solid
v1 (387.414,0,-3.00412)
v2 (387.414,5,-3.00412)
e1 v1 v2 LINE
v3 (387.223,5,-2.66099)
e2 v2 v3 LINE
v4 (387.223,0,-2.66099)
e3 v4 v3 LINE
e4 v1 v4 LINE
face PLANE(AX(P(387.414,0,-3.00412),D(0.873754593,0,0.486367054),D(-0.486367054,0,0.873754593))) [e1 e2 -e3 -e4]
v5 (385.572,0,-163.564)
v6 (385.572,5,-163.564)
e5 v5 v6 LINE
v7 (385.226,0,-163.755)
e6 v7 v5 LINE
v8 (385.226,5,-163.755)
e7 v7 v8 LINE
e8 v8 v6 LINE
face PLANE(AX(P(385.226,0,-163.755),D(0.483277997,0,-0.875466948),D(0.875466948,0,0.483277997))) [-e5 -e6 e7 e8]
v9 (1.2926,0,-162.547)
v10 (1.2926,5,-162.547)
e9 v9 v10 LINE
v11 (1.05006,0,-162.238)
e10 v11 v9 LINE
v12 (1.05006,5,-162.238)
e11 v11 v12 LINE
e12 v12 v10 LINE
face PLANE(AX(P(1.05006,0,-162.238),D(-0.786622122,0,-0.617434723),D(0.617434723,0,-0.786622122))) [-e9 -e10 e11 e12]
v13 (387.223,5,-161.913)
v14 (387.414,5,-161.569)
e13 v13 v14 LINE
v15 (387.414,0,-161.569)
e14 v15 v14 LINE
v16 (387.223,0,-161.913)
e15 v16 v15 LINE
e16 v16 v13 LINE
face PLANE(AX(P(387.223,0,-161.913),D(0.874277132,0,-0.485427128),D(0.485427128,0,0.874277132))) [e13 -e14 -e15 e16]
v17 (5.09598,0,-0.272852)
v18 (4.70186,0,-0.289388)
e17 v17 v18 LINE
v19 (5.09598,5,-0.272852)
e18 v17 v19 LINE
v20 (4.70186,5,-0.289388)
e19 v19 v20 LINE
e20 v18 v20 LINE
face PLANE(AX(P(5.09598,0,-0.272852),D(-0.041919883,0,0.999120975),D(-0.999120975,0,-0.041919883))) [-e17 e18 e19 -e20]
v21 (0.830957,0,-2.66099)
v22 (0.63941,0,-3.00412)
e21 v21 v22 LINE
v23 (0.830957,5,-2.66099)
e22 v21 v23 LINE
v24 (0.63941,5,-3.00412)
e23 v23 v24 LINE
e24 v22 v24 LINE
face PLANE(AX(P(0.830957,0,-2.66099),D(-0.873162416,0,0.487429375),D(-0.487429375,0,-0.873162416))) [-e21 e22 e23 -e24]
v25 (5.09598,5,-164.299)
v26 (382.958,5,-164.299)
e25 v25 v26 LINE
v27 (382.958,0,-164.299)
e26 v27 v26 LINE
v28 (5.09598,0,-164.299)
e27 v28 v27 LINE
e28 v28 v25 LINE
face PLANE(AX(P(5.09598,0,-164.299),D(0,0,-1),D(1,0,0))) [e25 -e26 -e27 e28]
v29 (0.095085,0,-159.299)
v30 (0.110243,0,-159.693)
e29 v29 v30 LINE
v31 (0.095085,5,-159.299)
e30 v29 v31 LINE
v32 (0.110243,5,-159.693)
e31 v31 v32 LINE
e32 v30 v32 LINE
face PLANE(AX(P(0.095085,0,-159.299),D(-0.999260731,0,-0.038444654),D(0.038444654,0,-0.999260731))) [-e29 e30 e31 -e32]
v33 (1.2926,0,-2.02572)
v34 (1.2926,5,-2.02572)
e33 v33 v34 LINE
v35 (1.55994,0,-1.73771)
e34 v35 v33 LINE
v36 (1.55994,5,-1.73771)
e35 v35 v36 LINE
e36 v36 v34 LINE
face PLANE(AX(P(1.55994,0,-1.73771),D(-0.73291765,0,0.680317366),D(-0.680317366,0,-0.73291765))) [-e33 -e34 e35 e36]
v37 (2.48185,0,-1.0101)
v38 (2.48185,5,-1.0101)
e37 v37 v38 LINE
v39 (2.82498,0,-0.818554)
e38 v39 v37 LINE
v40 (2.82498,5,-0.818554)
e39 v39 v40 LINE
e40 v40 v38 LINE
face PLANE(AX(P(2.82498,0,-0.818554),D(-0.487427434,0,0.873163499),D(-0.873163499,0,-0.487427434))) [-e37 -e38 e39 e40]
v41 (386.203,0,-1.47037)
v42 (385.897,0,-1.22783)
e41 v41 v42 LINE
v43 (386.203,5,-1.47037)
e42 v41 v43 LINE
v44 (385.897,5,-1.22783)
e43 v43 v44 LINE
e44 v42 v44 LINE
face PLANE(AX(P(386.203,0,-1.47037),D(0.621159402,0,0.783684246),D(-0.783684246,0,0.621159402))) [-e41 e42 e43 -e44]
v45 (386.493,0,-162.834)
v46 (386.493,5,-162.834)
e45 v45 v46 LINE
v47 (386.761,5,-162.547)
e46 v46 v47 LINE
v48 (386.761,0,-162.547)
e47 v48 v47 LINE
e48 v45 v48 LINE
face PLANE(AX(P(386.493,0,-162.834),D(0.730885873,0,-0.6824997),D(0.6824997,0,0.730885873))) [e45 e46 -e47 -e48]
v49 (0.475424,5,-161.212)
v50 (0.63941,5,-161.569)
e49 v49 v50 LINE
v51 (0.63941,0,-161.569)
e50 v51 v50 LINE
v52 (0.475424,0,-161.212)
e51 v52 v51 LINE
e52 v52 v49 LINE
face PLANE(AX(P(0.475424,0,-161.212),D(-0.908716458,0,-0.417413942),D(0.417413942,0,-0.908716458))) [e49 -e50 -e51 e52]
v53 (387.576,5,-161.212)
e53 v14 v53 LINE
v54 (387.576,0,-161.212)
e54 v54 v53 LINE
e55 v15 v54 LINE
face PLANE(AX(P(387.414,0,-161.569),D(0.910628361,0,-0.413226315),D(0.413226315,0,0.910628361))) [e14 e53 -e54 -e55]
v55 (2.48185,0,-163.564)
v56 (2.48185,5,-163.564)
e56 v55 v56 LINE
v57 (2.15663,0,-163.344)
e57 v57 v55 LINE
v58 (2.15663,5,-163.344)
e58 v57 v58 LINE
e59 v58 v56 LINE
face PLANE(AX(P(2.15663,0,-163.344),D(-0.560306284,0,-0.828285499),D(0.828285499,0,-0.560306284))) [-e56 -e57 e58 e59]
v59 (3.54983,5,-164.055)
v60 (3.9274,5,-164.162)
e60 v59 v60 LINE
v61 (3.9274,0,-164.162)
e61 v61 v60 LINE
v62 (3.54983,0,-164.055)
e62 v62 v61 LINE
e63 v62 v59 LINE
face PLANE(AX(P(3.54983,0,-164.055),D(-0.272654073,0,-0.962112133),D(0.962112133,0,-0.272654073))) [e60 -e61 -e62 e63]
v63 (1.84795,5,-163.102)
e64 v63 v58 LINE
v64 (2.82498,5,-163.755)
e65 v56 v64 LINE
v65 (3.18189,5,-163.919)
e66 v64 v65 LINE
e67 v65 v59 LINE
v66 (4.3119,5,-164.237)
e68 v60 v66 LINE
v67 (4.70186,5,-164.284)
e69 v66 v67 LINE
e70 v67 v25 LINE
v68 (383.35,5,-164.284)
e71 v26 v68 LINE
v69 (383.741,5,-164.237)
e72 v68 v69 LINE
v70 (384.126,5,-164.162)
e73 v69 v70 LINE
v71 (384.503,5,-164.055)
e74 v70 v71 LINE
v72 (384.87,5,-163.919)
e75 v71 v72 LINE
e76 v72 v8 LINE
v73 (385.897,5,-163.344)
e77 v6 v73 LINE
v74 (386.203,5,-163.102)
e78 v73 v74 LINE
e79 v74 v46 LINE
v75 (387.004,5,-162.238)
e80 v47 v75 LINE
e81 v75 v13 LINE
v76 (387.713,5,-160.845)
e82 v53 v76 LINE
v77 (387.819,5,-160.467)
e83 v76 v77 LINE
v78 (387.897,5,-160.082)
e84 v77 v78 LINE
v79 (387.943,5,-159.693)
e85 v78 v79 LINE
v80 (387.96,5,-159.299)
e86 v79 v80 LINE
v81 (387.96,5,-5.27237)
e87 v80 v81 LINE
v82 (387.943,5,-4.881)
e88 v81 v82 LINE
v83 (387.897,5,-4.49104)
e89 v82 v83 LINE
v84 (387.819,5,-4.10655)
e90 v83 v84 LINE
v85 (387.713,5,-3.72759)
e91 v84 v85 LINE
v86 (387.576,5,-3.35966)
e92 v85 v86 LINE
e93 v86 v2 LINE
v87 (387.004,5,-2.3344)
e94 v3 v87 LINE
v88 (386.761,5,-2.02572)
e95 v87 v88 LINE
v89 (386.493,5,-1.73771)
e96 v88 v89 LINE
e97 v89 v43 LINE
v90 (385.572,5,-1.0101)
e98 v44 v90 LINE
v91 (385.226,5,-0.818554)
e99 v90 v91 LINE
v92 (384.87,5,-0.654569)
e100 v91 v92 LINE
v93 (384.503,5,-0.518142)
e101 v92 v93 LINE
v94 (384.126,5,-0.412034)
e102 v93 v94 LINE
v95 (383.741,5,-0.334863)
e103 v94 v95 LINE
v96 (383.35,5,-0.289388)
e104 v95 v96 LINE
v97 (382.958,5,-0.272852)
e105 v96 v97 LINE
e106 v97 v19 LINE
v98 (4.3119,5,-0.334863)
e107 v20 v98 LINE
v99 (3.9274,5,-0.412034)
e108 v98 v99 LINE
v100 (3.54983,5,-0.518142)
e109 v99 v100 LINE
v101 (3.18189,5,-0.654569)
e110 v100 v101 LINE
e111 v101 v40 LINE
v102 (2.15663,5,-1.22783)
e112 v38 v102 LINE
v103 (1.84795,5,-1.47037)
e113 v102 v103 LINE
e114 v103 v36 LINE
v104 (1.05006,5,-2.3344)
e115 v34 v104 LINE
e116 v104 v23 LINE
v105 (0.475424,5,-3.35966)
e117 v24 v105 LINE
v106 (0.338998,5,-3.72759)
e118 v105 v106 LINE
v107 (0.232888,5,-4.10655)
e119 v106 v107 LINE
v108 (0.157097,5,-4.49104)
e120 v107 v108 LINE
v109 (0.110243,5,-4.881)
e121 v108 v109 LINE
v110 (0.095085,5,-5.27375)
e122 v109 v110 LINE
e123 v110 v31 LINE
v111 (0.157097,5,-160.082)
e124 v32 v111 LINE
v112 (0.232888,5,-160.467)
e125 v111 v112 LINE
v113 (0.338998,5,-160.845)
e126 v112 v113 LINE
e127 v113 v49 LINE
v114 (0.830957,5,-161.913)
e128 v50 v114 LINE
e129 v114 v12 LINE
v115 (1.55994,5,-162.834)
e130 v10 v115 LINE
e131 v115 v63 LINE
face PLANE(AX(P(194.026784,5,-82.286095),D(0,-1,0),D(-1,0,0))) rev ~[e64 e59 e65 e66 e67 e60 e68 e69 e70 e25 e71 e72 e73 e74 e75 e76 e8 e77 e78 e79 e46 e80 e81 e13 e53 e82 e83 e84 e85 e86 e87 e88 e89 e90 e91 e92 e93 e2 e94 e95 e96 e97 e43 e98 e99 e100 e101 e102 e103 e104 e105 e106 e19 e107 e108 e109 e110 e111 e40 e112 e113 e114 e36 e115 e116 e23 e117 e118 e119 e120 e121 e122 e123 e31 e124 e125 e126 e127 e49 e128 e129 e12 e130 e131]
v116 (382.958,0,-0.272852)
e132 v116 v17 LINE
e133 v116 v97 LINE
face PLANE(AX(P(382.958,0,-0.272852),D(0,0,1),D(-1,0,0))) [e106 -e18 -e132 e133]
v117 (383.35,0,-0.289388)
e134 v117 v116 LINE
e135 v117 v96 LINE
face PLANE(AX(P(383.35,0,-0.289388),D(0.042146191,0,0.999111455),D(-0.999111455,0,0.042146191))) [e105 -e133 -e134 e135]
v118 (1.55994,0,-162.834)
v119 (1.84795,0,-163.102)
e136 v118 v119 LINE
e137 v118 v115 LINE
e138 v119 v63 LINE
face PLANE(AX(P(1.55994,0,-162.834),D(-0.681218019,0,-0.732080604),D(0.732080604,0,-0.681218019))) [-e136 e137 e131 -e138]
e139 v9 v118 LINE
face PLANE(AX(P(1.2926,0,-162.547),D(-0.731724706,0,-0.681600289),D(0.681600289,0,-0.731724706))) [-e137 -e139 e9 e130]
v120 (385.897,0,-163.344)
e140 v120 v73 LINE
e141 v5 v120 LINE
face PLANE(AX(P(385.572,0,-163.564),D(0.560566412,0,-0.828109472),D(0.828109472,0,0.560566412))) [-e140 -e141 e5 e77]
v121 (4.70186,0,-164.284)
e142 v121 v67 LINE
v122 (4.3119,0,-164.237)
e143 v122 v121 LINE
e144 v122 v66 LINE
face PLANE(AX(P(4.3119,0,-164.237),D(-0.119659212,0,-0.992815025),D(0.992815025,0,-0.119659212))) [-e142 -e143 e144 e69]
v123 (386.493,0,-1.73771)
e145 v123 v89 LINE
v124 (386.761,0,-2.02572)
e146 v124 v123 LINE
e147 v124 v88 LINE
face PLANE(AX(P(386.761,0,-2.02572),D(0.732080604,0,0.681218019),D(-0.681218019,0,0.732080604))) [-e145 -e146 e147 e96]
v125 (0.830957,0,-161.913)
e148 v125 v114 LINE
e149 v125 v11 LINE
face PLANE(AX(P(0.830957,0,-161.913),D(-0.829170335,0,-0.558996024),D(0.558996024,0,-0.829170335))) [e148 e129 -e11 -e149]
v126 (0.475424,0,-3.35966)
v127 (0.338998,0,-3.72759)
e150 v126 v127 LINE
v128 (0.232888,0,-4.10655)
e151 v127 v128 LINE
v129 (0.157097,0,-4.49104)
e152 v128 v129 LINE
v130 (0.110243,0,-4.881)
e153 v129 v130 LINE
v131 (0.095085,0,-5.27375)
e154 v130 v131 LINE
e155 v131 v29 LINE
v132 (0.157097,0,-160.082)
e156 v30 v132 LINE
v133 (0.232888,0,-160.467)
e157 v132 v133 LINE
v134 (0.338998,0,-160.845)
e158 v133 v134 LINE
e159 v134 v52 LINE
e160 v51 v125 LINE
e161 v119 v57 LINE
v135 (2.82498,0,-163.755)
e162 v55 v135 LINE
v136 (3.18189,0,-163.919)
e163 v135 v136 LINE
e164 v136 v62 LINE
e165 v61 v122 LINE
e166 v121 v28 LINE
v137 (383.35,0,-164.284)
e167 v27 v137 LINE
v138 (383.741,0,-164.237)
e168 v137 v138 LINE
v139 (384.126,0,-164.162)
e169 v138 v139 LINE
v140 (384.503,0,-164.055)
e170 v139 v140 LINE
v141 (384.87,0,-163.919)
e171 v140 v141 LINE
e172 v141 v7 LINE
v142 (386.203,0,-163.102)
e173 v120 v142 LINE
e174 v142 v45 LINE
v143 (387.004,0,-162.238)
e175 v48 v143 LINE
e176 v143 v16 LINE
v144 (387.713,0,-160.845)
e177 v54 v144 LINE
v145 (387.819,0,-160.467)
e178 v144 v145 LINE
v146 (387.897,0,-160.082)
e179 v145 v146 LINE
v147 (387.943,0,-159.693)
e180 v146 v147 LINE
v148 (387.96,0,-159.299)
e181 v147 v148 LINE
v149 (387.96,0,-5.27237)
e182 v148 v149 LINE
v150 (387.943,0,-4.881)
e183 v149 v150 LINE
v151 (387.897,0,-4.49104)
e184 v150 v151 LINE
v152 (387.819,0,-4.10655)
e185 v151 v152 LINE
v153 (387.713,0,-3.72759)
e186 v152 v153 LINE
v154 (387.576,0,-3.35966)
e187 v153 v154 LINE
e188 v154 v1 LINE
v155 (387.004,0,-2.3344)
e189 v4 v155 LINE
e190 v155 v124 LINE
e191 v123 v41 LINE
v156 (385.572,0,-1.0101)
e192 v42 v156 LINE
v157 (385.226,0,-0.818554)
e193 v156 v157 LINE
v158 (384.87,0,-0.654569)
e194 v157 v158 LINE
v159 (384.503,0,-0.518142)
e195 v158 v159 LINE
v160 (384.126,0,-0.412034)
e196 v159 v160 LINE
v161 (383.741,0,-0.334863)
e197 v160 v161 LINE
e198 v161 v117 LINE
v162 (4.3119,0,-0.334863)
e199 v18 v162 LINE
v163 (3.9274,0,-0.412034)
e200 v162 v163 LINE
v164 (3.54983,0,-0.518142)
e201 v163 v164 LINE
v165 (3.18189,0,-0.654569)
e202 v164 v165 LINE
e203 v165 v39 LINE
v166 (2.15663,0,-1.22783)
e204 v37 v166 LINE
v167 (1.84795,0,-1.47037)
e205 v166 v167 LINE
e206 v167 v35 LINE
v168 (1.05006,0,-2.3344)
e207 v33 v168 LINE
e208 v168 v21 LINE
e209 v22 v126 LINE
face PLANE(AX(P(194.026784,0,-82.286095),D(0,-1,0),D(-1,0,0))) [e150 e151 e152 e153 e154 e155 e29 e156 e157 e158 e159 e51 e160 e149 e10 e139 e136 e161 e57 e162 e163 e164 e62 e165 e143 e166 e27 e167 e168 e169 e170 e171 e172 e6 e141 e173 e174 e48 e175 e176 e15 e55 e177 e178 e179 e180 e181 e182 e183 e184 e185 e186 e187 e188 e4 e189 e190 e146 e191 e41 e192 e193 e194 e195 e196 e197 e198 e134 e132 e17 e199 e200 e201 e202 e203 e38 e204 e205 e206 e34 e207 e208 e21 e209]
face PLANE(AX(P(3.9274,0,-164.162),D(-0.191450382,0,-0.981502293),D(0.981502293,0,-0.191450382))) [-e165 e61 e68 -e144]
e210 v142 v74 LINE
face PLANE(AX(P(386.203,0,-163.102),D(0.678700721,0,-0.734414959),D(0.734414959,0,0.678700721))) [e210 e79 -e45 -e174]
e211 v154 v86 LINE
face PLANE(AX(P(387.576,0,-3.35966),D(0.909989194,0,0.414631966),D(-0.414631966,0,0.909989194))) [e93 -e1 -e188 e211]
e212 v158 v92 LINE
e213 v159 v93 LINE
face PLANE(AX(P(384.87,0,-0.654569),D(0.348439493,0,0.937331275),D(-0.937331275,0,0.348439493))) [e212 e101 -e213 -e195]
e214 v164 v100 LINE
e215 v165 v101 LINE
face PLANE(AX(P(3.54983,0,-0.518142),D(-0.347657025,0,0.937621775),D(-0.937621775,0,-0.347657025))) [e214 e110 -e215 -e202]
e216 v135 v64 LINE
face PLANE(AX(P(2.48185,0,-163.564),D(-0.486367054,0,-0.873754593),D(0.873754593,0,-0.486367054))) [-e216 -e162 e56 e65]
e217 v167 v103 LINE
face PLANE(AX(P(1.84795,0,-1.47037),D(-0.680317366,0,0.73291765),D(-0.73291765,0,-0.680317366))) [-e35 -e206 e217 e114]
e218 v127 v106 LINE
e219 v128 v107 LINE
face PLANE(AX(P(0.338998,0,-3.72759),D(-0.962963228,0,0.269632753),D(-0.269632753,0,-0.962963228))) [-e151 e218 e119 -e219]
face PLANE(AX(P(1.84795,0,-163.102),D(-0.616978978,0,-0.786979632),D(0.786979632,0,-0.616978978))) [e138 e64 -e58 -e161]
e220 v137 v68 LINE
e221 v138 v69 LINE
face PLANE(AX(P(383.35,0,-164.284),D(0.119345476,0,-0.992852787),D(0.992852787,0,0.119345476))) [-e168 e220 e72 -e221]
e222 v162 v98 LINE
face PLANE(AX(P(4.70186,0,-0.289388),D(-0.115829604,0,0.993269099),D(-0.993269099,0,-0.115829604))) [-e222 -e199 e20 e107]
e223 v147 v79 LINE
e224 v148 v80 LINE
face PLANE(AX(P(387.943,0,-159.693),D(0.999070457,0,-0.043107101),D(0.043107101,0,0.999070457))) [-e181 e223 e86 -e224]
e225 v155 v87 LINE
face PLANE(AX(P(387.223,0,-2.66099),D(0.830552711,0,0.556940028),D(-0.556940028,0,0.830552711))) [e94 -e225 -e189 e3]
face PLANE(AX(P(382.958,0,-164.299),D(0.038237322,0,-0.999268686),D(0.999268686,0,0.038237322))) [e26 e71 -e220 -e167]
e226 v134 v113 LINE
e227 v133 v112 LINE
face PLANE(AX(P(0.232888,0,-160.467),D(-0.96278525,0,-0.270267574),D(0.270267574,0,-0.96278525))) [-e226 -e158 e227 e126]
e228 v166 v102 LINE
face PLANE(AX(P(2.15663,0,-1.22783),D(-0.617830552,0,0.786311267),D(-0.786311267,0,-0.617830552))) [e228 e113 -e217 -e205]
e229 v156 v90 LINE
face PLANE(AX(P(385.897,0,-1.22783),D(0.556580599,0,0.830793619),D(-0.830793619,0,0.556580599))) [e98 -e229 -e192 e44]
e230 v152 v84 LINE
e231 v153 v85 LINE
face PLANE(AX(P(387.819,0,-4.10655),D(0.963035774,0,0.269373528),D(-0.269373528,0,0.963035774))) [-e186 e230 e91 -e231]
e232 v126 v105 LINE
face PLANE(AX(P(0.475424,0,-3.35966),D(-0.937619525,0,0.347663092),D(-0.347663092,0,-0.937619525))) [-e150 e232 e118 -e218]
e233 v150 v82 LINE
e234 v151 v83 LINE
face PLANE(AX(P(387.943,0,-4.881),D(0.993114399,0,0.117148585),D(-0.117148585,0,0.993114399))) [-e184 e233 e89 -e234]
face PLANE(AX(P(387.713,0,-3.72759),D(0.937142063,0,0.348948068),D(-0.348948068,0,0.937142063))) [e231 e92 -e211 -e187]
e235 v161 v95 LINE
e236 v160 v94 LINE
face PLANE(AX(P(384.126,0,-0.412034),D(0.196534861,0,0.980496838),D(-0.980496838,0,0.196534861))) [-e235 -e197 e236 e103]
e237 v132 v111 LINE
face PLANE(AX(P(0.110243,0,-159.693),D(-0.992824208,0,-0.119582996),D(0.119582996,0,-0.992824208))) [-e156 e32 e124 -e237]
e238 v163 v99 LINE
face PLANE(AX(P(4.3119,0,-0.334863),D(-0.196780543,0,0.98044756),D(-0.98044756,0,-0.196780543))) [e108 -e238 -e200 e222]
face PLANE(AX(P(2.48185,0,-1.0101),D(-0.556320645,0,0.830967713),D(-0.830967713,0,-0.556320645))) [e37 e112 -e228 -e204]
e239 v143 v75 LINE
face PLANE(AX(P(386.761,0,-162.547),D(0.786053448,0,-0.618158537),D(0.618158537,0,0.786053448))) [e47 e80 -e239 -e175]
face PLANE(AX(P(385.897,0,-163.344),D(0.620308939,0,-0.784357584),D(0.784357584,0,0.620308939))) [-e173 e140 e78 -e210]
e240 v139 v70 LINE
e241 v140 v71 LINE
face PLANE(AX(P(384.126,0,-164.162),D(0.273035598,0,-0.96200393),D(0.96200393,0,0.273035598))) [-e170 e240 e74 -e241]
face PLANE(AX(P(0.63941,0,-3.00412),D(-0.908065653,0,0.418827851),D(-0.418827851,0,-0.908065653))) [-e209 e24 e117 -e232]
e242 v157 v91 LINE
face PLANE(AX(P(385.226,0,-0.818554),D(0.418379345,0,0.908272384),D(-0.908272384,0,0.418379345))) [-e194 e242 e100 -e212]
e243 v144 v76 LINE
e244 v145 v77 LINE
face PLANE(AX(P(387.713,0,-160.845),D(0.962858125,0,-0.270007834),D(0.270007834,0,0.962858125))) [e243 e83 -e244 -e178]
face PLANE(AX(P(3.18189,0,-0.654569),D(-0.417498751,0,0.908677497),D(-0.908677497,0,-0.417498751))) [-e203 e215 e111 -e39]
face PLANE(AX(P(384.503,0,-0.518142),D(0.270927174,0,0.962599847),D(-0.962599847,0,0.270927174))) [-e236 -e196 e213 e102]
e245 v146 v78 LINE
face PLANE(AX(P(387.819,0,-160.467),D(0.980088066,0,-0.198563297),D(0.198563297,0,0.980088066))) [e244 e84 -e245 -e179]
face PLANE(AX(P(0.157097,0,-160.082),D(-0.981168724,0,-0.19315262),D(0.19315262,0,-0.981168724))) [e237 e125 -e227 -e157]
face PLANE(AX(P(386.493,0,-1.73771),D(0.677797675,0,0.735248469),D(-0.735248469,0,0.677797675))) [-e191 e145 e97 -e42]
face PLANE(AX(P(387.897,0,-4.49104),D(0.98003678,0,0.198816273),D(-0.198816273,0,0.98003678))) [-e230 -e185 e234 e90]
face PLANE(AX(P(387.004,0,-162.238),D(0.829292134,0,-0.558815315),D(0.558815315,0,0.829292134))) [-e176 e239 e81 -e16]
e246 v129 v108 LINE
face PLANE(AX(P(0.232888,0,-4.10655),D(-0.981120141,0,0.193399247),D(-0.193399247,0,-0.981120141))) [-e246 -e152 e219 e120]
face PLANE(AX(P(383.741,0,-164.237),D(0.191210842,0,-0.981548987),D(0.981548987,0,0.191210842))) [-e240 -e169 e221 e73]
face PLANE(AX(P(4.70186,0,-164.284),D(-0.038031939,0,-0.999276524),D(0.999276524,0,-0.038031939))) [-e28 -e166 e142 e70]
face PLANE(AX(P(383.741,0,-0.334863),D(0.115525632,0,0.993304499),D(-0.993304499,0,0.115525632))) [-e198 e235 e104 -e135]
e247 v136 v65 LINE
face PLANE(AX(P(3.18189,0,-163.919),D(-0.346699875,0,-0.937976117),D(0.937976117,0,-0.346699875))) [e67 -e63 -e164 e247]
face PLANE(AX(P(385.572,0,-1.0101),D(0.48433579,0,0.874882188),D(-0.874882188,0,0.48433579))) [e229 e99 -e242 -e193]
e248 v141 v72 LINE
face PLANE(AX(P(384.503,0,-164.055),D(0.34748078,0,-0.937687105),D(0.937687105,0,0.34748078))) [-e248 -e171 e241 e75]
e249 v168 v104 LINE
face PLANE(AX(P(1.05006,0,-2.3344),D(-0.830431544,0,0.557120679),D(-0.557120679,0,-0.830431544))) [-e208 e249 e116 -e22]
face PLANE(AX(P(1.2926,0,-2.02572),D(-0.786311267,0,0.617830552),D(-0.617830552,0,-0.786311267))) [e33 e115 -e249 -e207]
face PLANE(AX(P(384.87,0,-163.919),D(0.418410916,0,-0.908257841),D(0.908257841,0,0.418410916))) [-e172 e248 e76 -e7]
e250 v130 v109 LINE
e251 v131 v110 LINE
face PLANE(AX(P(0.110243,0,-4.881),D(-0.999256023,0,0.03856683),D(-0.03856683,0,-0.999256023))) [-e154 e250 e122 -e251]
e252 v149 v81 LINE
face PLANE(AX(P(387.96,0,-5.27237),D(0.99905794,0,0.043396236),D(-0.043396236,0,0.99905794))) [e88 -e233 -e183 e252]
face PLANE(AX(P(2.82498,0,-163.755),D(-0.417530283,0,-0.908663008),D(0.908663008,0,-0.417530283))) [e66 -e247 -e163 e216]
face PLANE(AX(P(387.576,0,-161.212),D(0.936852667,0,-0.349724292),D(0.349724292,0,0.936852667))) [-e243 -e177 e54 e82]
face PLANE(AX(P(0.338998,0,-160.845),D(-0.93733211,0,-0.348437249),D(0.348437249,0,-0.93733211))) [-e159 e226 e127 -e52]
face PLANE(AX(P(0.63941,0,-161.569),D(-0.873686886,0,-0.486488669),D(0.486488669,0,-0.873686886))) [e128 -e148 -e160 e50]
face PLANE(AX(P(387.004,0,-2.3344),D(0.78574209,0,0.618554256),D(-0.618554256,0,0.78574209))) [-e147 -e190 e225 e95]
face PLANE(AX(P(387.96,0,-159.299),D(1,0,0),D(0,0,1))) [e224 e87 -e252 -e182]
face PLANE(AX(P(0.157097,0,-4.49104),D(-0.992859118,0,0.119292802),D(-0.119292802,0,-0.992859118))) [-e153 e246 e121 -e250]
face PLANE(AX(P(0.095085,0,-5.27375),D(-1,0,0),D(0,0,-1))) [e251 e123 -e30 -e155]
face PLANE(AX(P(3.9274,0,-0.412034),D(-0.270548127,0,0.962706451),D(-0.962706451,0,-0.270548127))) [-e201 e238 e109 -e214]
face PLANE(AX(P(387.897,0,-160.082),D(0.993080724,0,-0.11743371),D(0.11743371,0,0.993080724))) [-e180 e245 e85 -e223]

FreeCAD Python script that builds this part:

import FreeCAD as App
import Part
import Sketcher

doc = App.newDocument("Part")
body = doc.addObject("PartDesign::Body", "Body")

sketch1 = body.newObject("Sketcher::SketchObject", "Sketch")
sketch1.AttachmentSupport = (doc.getObject("XZ_Plane"), [""])
sketch1.MapMode = "FlatFace"
sketch1.addGeometry(Part.LineSegment(App.Vector(383.35, -164.28, 0), App.Vector(382.96, -164.3, 0)), False)
sketch1.addGeometry(Part.LineSegment(App.Vector(382.96, -164.3, 0), App.Vector(5.1, -164.3, 0)), False)
sketch1.addGeometry(Part.LineSegment(App.Vector(5.1, -164.3, 0), App.Vector(4.7, -164.28, 0)), False)
sketch1.addGeometry(Part.LineSegment(App.Vector(4.7, -164.28, 0), App.Vector(4.31, -164.24, 0)), False)
sketch1.addGeometry(Part.LineSegment(App.Vector(4.31, -164.24, 0), App.Vector(3.93, -164.16, 0)), False)
sketch1.addGeometry(Part.LineSegment(App.Vector(3.93, -164.16, 0), App.Vector(3.55, -164.06, 0)), False)
sketch1.addGeometry(Part.LineSegment(App.Vector(3.55, -164.06, 0), App.Vector(3.18, -163.92, 0)), False)
sketch1.addGeometry(Part.LineSegment(App.Vector(3.18, -163.92, 0), App.Vector(2.82, -163.75, 0)), False)
sketch1.addGeometry(Part.LineSegment(App.Vector(2.82, -163.75, 0), App.Vector(2.48, -163.56, 0)), False)
sketch1.addGeometry(Part.LineSegment(App.Vector(2.48, -163.56, 0), App.Vector(2.16, -163.34, 0)), False)
sketch1.addGeometry(Part.LineSegment(App.Vector(2.16, -163.34, 0), App.Vector(1.85, -163.1, 0)), False)
sketch1.addGeometry(Part.LineSegment(App.Vector(1.85, -163.1, 0), App.Vector(1.56, -162.83, 0)), False)
sketch1.addGeometry(Part.LineSegment(App.Vector(1.56, -162.83, 0), App.Vector(1.29, -162.55, 0)), False)
sketch1.addGeometry(Part.LineSegment(App.Vector(1.29, -162.55, 0), App.Vector(1.05, -162.24, 0)), False)
sketch1.addGeometry(Part.LineSegment(App.Vector(1.05, -162.24, 0), App.Vector(0.83, -161.91, 0)), False)
sketch1.addGeometry(Part.LineSegment(App.Vector(0.83, -161.91, 0), App.Vector(0.64, -161.57, 0)), False)
sketch1.addGeometry(Part.LineSegment(App.Vector(0.64, -161.57, 0), App.Vector(0.48, -161.21, 0)), False)
sketch1.addGeometry(Part.LineSegment(App.Vector(0.48, -161.21, 0), App.Vector(0.34, -160.84, 0)), False)
sketch1.addGeometry(Part.LineSegment(App.Vector(0.34, -160.84, 0), App.Vector(0.23, -160.47, 0)), False)
sketch1.addGeometry(Part.LineSegment(App.Vector(0.23, -160.47, 0), App.Vector(0.16, -160.08, 0)), False)
sketch1.addGeometry(Part.LineSegment(App.Vector(0.16, -160.08, 0), App.Vector(0.11, -159.69, 0)), False)
sketch1.addGeometry(Part.LineSegment(App.Vector(0.11, -159.69, 0), App.Vector(0.1, -159.3, 0)), False)
sketch1.addGeometry(Part.LineSegment(App.Vector(0.1, -159.3, 0), App.Vector(0.1, -5.27, 0)), False)
sketch1.addGeometry(Part.LineSegment(App.Vector(0.1, -5.27, 0), App.Vector(0.11, -4.88, 0)), False)
sketch1.addGeometry(Part.LineSegment(App.Vector(0.11, -4.88, 0), App.Vector(0.16, -4.49, 0)), False)
sketch1.addGeometry(Part.LineSegment(App.Vector(0.16, -4.49, 0), App.Vector(0.23, -4.11, 0)), False)
sketch1.addGeometry(Part.LineSegment(App.Vector(0.23, -4.11, 0), App.Vector(0.34, -3.73, 0)), False)
sketch1.addGeometry(Part.LineSegment(App.Vector(0.34, -3.73, 0), App.Vector(0.48, -3.36, 0)), False)
sketch1.addGeometry(Part.LineSegment(App.Vector(0.48, -3.36, 0), App.Vector(0.64, -3, 0)), False)
sketch1.addGeometry(Part.LineSegment(App.Vector(0.64, -3, 0), App.Vector(0.83, -2.66, 0)), False)
sketch1.addGeometry(Part.LineSegment(App.Vector(0.83, -2.66, 0), App.Vector(1.05, -2.33, 0)), False)
sketch1.addGeometry(Part.LineSegment(App.Vector(1.05, -2.33, 0), App.Vector(1.29, -2.03, 0)), False)
sketch1.addGeometry(Part.LineSegment(App.Vector(1.29, -2.03, 0), App.Vector(1.56, -1.74, 0)), False)
sketch1.addGeometry(Part.LineSegment(App.Vector(1.56, -1.74, 0), App.Vector(1.85, -1.47, 0)), False)
sketch1.addGeometry(Part.LineSegment(App.Vector(1.85, -1.47, 0), App.Vector(2.16, -1.23, 0)), False)
sketch1.addGeometry(Part.LineSegment(App.Vector(2.16, -1.23, 0), App.Vector(2.48, -1.01, 0)), False)
sketch1.addGeometry(Part.LineSegment(App.Vector(2.48, -1.01, 0), App.Vector(2.82, -0.82, 0)), False)
sketch1.addGeometry(Part.LineSegment(App.Vector(2.82, -0.82, 0), App.Vector(3.18, -0.65, 0)), False)
sketch1.addGeometry(Part.LineSegment(App.Vector(3.18, -0.65, 0), App.Vector(3.55, -0.52, 0)), False)
sketch1.addGeometry(Part.LineSegment(App.Vector(3.55, -0.52, 0), App.Vector(3.93, -0.41, 0)), False)
sketch1.addGeometry(Part.LineSegment(App.Vector(3.93, -0.41, 0), App.Vector(4.31, -0.33, 0)), False)
sketch1.addGeometry(Part.LineSegment(App.Vector(4.31, -0.33, 0), App.Vector(4.7, -0.29, 0)), False)
sketch1.addGeometry(Part.LineSegment(App.Vector(4.7, -0.29, 0), App.Vector(5.1, -0.27, 0)), False)
sketch1.addGeometry(Part.LineSegment(App.Vector(5.1, -0.27, 0), App.Vector(382.96, -0.27, 0)), False)
sketch1.addGeometry(Part.LineSegment(App.Vector(382.96, -0.27, 0), App.Vector(383.35, -0.29, 0)), False)
sketch1.addGeometry(Part.LineSegment(App.Vector(383.35, -0.29, 0), App.Vector(383.74, -0.33, 0)), False)
sketch1.addGeometry(Part.LineSegment(App.Vector(383.74, -0.33, 0), App.Vector(384.13, -0.41, 0)), False)
sketch1.addGeometry(Part.LineSegment(App.Vector(384.13, -0.41, 0), App.Vector(384.5, -0.52, 0)), False)
sketch1.addGeometry(Part.LineSegment(App.Vector(384.5, -0.52, 0), App.Vector(384.87, -0.65, 0)), False)
sketch1.addGeometry(Part.LineSegment(App.Vector(384.87, -0.65, 0), App.Vector(385.23, -0.82, 0)), False)
sketch1.addGeometry(Part.LineSegment(App.Vector(385.23, -0.82, 0), App.Vector(385.57, -1.01, 0)), False)
sketch1.addGeometry(Part.LineSegment(App.Vector(385.57, -1.01, 0), App.Vector(385.9, -1.23, 0)), False)
sketch1.addGeometry(Part.LineSegment(App.Vector(385.9, -1.23, 0), App.Vector(386.2, -1.47, 0)), False)
sketch1.addGeometry(Part.LineSegment(App.Vector(386.2, -1.47, 0), App.Vector(386.49, -1.74, 0)), False)
sketch1.addGeometry(Part.LineSegment(App.Vector(386.49, -1.74, 0), App.Vector(386.76, -2.03, 0)), False)
sketch1.addGeometry(Part.LineSegment(App.Vector(386.76, -2.03, 0), App.Vector(387, -2.33, 0)), False)
sketch1.addGeometry(Part.LineSegment(App.Vector(387, -2.33, 0), App.Vector(387.22, -2.66, 0)), False)
sketch1.addGeometry(Part.LineSegment(App.Vector(387.22, -2.66, 0), App.Vector(387.41, -3, 0)), False)
sketch1.addGeometry(Part.LineSegment(App.Vector(387.41, -3, 0), App.Vector(387.58, -3.36, 0)), False)
sketch1.addGeometry(Part.LineSegment(App.Vector(387.58, -3.36, 0), App.Vector(387.71, -3.73, 0)), False)
sketch1.addGeometry(Part.LineSegment(App.Vector(387.71, -3.73, 0), App.Vector(387.82, -4.11, 0)), False)
sketch1.addGeometry(Part.LineSegment(App.Vector(387.82, -4.11, 0), App.Vector(387.9, -4.49, 0)), False)
sketch1.addGeometry(Part.LineSegment(App.Vector(387.9, -4.49, 0), App.Vector(387.94, -4.88, 0)), False)
sketch1.addGeometry(Part.LineSegment(App.Vector(387.94, -4.88, 0), App.Vector(387.96, -5.27, 0)), False)
sketch1.addGeometry(Part.LineSegment(App.Vector(387.96, -5.27, 0), App.Vector(387.96, -159.3, 0)), False)
sketch1.addGeometry(Part.LineSegment(App.Vector(387.96, -159.3, 0), App.Vector(387.94, -159.69, 0)), False)
sketch1.addGeometry(Part.LineSegment(App.Vector(387.94, -159.69, 0), App.Vector(387.9, -160.08, 0)), False)
sketch1.addGeometry(Part.LineSegment(App.Vector(387.9, -160.08, 0), App.Vector(387.82, -160.47, 0)), False)
sketch1.addGeometry(Part.LineSegment(App.Vector(387.82, -160.47, 0), App.Vector(387.71, -160.84, 0)), False)
sketch1.addGeometry(Part.LineSegment(App.Vector(387.71, -160.84, 0), App.Vector(387.58, -161.21, 0)), False)
sketch1.addGeometry(Part.LineSegment(App.Vector(387.58, -161.21, 0), App.Vector(387.41, -161.57, 0)), False)
sketch1.addGeometry(Part.LineSegment(App.Vector(387.41, -161.57, 0), App.Vector(387.22, -161.91, 0)), False)
sketch1.addGeometry(Part.LineSegment(App.Vector(387.22, -161.91, 0), App.Vector(387, -162.24, 0)), False)
sketch1.addGeometry(Part.LineSegment(App.Vector(387, -162.24, 0), App.Vector(386.76, -162.55, 0)), False)
sketch1.addGeometry(Part.LineSegment(App.Vector(386.76, -162.55, 0), App.Vector(386.49, -162.83, 0)), False)
sketch1.addGeometry(Part.LineSegment(App.Vector(386.49, -162.83, 0), App.Vector(386.2, -163.1, 0)), False)
sketch1.addGeometry(Part.LineSegment(App.Vector(386.2, -163.1, 0), App.Vector(385.9, -163.34, 0)), False)
sketch1.addGeometry(Part.LineSegment(App.Vector(385.9, -163.34, 0), App.Vector(385.57, -163.56, 0)), False)
sketch1.addGeometry(Part.LineSegment(App.Vector(385.57, -163.56, 0), App.Vector(385.23, -163.75, 0)), False)
sketch1.addGeometry(Part.LineSegment(App.Vector(385.23, -163.75, 0), App.Vector(384.87, -163.92, 0)), False)
sketch1.addGeometry(Part.LineSegment(App.Vector(384.87, -163.92, 0), App.Vector(384.5, -164.06, 0)), False)
sketch1.addGeometry(Part.LineSegment(App.Vector(384.5, -164.06, 0), App.Vector(384.13, -164.16, 0)), False)
sketch1.addGeometry(Part.LineSegment(App.Vector(384.13, -164.16, 0), App.Vector(383.74, -164.24, 0)), False)
sketch1.addGeometry(Part.LineSegment(App.Vector(383.74, -164.24, 0), App.Vector(383.35, -164.28, 0)), False)
sketch1.addConstraint(Sketcher.Constraint("Coincident", 0, 2, 1, 1))
sketch1.addConstraint(Sketcher.Constraint("Coincident", 1, 2, 2, 1))
sketch1.addConstraint(Sketcher.Constraint("Coincident", 2, 2, 3, 1))
sketch1.addConstraint(Sketcher.Constraint("Coincident", 3, 2, 4, 1))
sketch1.addConstraint(Sketcher.Constraint("Coincident", 4, 2, 5, 1))
sketch1.addConstraint(Sketcher.Constraint("Coincident", 5, 2, 6, 1))
sketch1.addConstraint(Sketcher.Constraint("Coincident", 6, 2, 7, 1))
sketch1.addConstraint(Sketcher.Constraint("Coincident", 7, 2, 8, 1))
sketch1.addConstraint(Sketcher.Constraint("Coincident", 8, 2, 9, 1))
sketch1.addConstraint(Sketcher.Constraint("Coincident", 9, 2, 10, 1))
sketch1.addConstraint(Sketcher.Constraint("Coincident", 10, 2, 11, 1))
sketch1.addConstraint(Sketcher.Constraint("Coincident", 11, 2, 12, 1))
sketch1.addConstraint(Sketcher.Constraint("Coincident", 12, 2, 13, 1))
sketch1.addConstraint(Sketcher.Constraint("Coincident", 13, 2, 14, 1))
sketch1.addConstraint(Sketcher.Constraint("Coincident", 14, 2, 15, 1))
sketch1.addConstraint(Sketcher.Constraint("Coincident", 15, 2, 16, 1))
sketch1.addConstraint(Sketcher.Constraint("Coincident", 16, 2, 17, 1))
sketch1.addConstraint(Sketcher.Constraint("Coincident", 17, 2, 18, 1))
sketch1.addConstraint(Sketcher.Constraint("Coincident", 18, 2, 19, 1))
sketch1.addConstraint(Sketcher.Constraint("Coincident", 19, 2, 20, 1))
sketch1.addConstraint(Sketcher.Constraint("Coincident", 20, 2, 21, 1))
sketch1.addConstraint(Sketcher.Constraint("Coincident", 21, 2, 22, 1))
sketch1.addConstraint(Sketcher.Constraint("Coincident", 22, 2, 23, 1))
sketch1.addConstraint(Sketcher.Constraint("Coincident", 23, 2, 24, 1))
sketch1.addConstraint(Sketcher.Constraint("Coincident", 24, 2, 25, 1))
sketch1.addConstraint(Sketcher.Constraint("Coincident", 25, 2, 26, 1))
sketch1.addConstraint(Sketcher.Constraint("Coincident", 26, 2, 27, 1))
sketch1.addConstraint(Sketcher.Constraint("Coincident", 27, 2, 28, 1))
sketch1.addConstraint(Sketcher.Constraint("Coincident", 28, 2, 29, 1))
sketch1.addConstraint(Sketcher.Constraint("Coincident", 29, 2, 30, 1))
sketch1.addConstraint(Sketcher.Constraint("Coincident", 30, 2, 31, 1))
sketch1.addConstraint(Sketcher.Constraint("Coincident", 31, 2, 32, 1))
sketch1.addConstraint(Sketcher.Constraint("Coincident", 32, 2, 33, 1))
sketch1.addConstraint(Sketcher.Constraint("Coincident", 33, 2, 34, 1))
sketch1.addConstraint(Sketcher.Constraint("Coincident", 34, 2, 35, 1))
sketch1.addConstraint(Sketcher.Constraint("Coincident", 35, 2, 36, 1))
sketch1.addConstraint(Sketcher.Constraint("Coincident", 36, 2, 37, 1))
sketch1.addConstraint(Sketcher.Constraint("Coincident", 37, 2, 38, 1))
sketch1.addConstraint(Sketcher.Constraint("Coincident", 38, 2, 39, 1))
sketch1.addConstraint(Sketcher.Constraint("Coincident", 39, 2, 40, 1))
sketch1.addConstraint(Sketcher.Constraint("Coincident", 40, 2, 41, 1))
sketch1.addConstraint(Sketcher.Constraint("Coincident", 41, 2, 42, 1))
sketch1.addConstraint(Sketcher.Constraint("Coincident", 42, 2, 43, 1))
sketch1.addConstraint(Sketcher.Constraint("Coincident", 43, 2, 44, 1))
sketch1.addConstraint(Sketcher.Constraint("Coincident", 44, 2, 45, 1))
sketch1.addConstraint(Sketcher.Constraint("Coincident", 45, 2, 46, 1))
sketch1.addConstraint(Sketcher.Constraint("Coincident", 46, 2, 47, 1))
sketch1.addConstraint(Sketcher.Constraint("Coincident", 47, 2, 48, 1))
sketch1.addConstraint(Sketcher.Constraint("Coincident", 48, 2, 49, 1))
sketch1.addConstraint(Sketcher.Constraint("Coincident", 49, 2, 50, 1))
sketch1.addConstraint(Sketcher.Constraint("Coincident", 50, 2, 51, 1))
sketch1.addConstraint(Sketcher.Constraint("Coincident", 51, 2, 52, 1))
sketch1.addConstraint(Sketcher.Constraint("Coincident", 52, 2, 53, 1))
sketch1.addConstraint(Sketcher.Constraint("Coincident", 53, 2, 54, 1))
sketch1.addConstraint(Sketcher.Constraint("Coincident", 54, 2, 55, 1))
sketch1.addConstraint(Sketcher.Constraint("Coincident", 55, 2, 56, 1))
sketch1.addConstraint(Sketcher.Constraint("Coincident", 56, 2, 57, 1))
sketch1.addConstraint(Sketcher.Constraint("Coincident", 57, 2, 58, 1))
sketch1.addConstraint(Sketcher.Constraint("Coincident", 58, 2, 59, 1))
sketch1.addConstraint(Sketcher.Constraint("Coincident", 59, 2, 60, 1))
sketch1.addConstraint(Sketcher.Constraint("Coincident", 60, 2, 61, 1))
sketch1.addConstraint(Sketcher.Constraint("Coincident", 61, 2, 62, 1))
sketch1.addConstraint(Sketcher.Constraint("Coincident", 62, 2, 63, 1))
sketch1.addConstraint(Sketcher.Constraint("Coincident", 63, 2, 64, 1))
sketch1.addConstraint(Sketcher.Constraint("Coincident", 64, 2, 65, 1))
sketch1.addConstraint(Sketcher.Constraint("Coincident", 65, 2, 66, 1))
sketch1.addConstraint(Sketcher.Constraint("Coincident", 66, 2, 67, 1))
sketch1.addConstraint(Sketcher.Constraint("Coincident", 67, 2, 68, 1))
sketch1.addConstraint(Sketcher.Constraint("Coincident", 68, 2, 69, 1))
sketch1.addConstraint(Sketcher.Constraint("Coincident", 69, 2, 70, 1))
sketch1.addConstraint(Sketcher.Constraint("Coincident", 70, 2, 71, 1))
sketch1.addConstraint(Sketcher.Constraint("Coincident", 71, 2, 72, 1))
sketch1.addConstraint(Sketcher.Constraint("Coincident", 72, 2, 73, 1))
sketch1.addConstraint(Sketcher.Constraint("Coincident", 73, 2, 74, 1))
sketch1.addConstraint(Sketcher.Constraint("Coincident", 74, 2, 75, 1))
sketch1.addConstraint(Sketcher.Constraint("Coincident", 75, 2, 76, 1))
sketch1.addConstraint(Sketcher.Constraint("Coincident", 76, 2, 77, 1))
sketch1.addConstraint(Sketcher.Constraint("Coincident", 77, 2, 78, 1))
sketch1.addConstraint(Sketcher.Constraint("Coincident", 78, 2, 79, 1))
sketch1.addConstraint(Sketcher.Constraint("Coincident", 79, 2, 80, 1))
sketch1.addConstraint(Sketcher.Constraint("Coincident", 80, 2, 81, 1))
sketch1.addConstraint(Sketcher.Constraint("Coincident", 81, 2, 82, 1))
sketch1.addConstraint(Sketcher.Constraint("Coincident", 82, 2, 83, 1))
sketch1.addConstraint(Sketcher.Constraint("Coincident", 83, 2, 0, 1))
sketch1.addConstraint(Sketcher.Constraint("Horizontal", 1))
sketch1.addConstraint(Sketcher.Constraint("Vertical", 22))
sketch1.addConstraint(Sketcher.Constraint("Horizontal", 43))
sketch1.addConstraint(Sketcher.Constraint("Vertical", 64))
sketch1.addConstraint(Sketcher.Constraint("Horizontal", 41, 2, 44, 2))
sketch1.addConstraint(Sketcher.Constraint("Horizontal", 40, 2, 45, 2))
sketch1.addConstraint(Sketcher.Constraint("Horizontal", 39, 2, 46, 2))
sketch1.addConstraint(Sketcher.Constraint("Horizontal", 38, 2, 47, 2))
sketch1.addConstraint(Sketcher.Constraint("Horizontal", 37, 2, 48, 2))
sketch1.addConstraint(Sketcher.Constraint("Horizontal", 36, 2, 49, 2))
sketch1.addConstraint(Sketcher.Constraint("Horizontal", 35, 2, 50, 2))
sketch1.addConstraint(Sketcher.Constraint("Horizontal", 34, 2, 51, 2))
sketch1.addConstraint(Sketcher.Constraint("Horizontal", 33, 2, 52, 2))
sketch1.addConstraint(Sketcher.Constraint("Horizontal", 32, 2, 53, 2))
sketch1.addConstraint(Sketcher.Constraint("Horizontal", 31, 2, 54, 2))
sketch1.addConstraint(Sketcher.Constraint("Horizontal", 30, 2, 55, 2))
sketch1.addConstraint(Sketcher.Constraint("Horizontal", 29, 2, 56, 2))
sketch1.addConstraint(Sketcher.Constraint("Horizontal", 28, 2, 57, 2))
sketch1.addConstraint(Sketcher.Constraint("Horizontal", 27, 2, 58, 2))
sketch1.addConstraint(Sketcher.Constraint("Horizontal", 26, 2, 59, 2))
sketch1.addConstraint(Sketcher.Constraint("Horizontal", 25, 2, 60, 2))
sketch1.addConstraint(Sketcher.Constraint("Horizontal", 24, 2, 61, 2))
sketch1.addConstraint(Sketcher.Constraint("Horizontal", 23, 2, 62, 2))
sketch1.addConstraint(Sketcher.Constraint("Horizontal", 21, 2, 64, 2))
sketch1.addConstraint(Sketcher.Constraint("Horizontal", 20, 2, 65, 2))
sketch1.addConstraint(Sketcher.Constraint("Horizontal", 19, 2, 66, 2))
sketch1.addConstraint(Sketcher.Constraint("Horizontal", 18, 2, 67, 2))
sketch1.addConstraint(Sketcher.Constraint("Horizontal", 17, 2, 68, 2))
sketch1.addConstraint(Sketcher.Constraint("Horizontal", 16, 2, 69, 2))
sketch1.addConstraint(Sketcher.Constraint("Horizontal", 15, 2, 70, 2))
sketch1.addConstraint(Sketcher.Constraint("Horizontal", 14, 2, 71, 2))
sketch1.addConstraint(Sketcher.Constraint("Horizontal", 13, 2, 72, 2))
sketch1.addConstraint(Sketcher.Constraint("Horizontal", 12, 2, 73, 2))
sketch1.addConstraint(Sketcher.Constraint("Horizontal", 11, 2, 74, 2))
sketch1.addConstraint(Sketcher.Constraint("Horizontal", 10, 2, 75, 2))
sketch1.addConstraint(Sketcher.Constraint("Horizontal", 9, 2, 76, 2))
sketch1.addConstraint(Sketcher.Constraint("Horizontal", 8, 2, 77, 2))
sketch1.addConstraint(Sketcher.Constraint("Horizontal", 7, 2, 78, 2))
sketch1.addConstraint(Sketcher.Constraint("Horizontal", 6, 2, 79, 2))
sketch1.addConstraint(Sketcher.Constraint("Horizontal", 5, 2, 80, 2))
sketch1.addConstraint(Sketcher.Constraint("Horizontal", 4, 2, 81, 2))
sketch1.addConstraint(Sketcher.Constraint("Horizontal", 3, 2, 82, 2))
sketch1.addConstraint(Sketcher.Constraint("Horizontal", 2, 2, 83, 2))
sketch1.addConstraint(Sketcher.Constraint("Vertical", 20, 2, 23, 2))
sketch1.addConstraint(Sketcher.Constraint("Vertical", 19, 2, 24, 2))
sketch1.addConstraint(Sketcher.Constraint("Vertical", 18, 2, 25, 2))
sketch1.addConstraint(Sketcher.Constraint("Vertical", 17, 2, 26, 2))
sketch1.addConstraint(Sketcher.Constraint("Vertical", 16, 2, 27, 2))
sketch1.addConstraint(Sketcher.Constraint("Vertical", 15, 2, 28, 2))
sketch1.addConstraint(Sketcher.Constraint("Vertical", 14, 2, 29, 2))
sketch1.addConstraint(Sketcher.Constraint("Vertical", 13, 2, 30, 2))
sketch1.addConstraint(Sketcher.Constraint("Vertical", 12, 2, 31, 2))
sketch1.addConstraint(Sketcher.Constraint("Vertical", 11, 2, 32, 2))
sketch1.addConstraint(Sketcher.Constraint("Vertical", 10, 2, 33, 2))
sketch1.addConstraint(Sketcher.Constraint("Vertical", 9, 2, 34, 2))
sketch1.addConstraint(Sketcher.Constraint("Vertical", 8, 2, 35, 2))
sketch1.addConstraint(Sketcher.Constraint("Vertical", 7, 2, 36, 2))
sketch1.addConstraint(Sketcher.Constraint("Vertical", 6, 2, 37, 2))
sketch1.addConstraint(Sketcher.Constraint("Vertical", 5, 2, 38, 2))
sketch1.addConstraint(Sketcher.Constraint("Vertical", 4, 2, 39, 2))
sketch1.addConstraint(Sketcher.Constraint("Vertical", 3, 2, 40, 2))
sketch1.addConstraint(Sketcher.Constraint("Vertical", 2, 2, 41, 2))
sketch1.addConstraint(Sketcher.Constraint("Vertical", 1, 2, 42, 2))
sketch1.addConstraint(Sketcher.Constraint("Vertical", 0, 2, 43, 2))
sketch1.addConstraint(Sketcher.Constraint("Vertical", 62, 2, 65, 2))
sketch1.addConstraint(Sketcher.Constraint("Vertical", 61, 2, 66, 2))
sketch1.addConstraint(Sketcher.Constraint("Vertical", 60, 2, 67, 2))
sketch1.addConstraint(Sketcher.Constraint("Vertical", 59, 2, 68, 2))
sketch1.addConstraint(Sketcher.Constraint("Vertical", 58, 2, 69, 2))
sketch1.addConstraint(Sketcher.Constraint("Vertical", 57, 2, 70, 2))
sketch1.addConstraint(Sketcher.Constraint("Vertical", 56, 2, 71, 2))
sketch1.addConstraint(Sketcher.Constraint("Vertical", 55, 2, 72, 2))
sketch1.addConstraint(Sketcher.Constraint("Vertical", 54, 2, 73, 2))
sketch1.addConstraint(Sketcher.Constraint("Vertical", 53, 2, 74, 2))
sketch1.addConstraint(Sketcher.Constraint("Vertical", 52, 2, 75, 2))
sketch1.addConstraint(Sketcher.Constraint("Vertical", 51, 2, 76, 2))
sketch1.addConstraint(Sketcher.Constraint("Vertical", 50, 2, 77, 2))
sketch1.addConstraint(Sketcher.Constraint("Vertical", 49, 2, 78, 2))
sketch1.addConstraint(Sketcher.Constraint("Vertical", 48, 2, 79, 2))
sketch1.addConstraint(Sketcher.Constraint("Vertical", 47, 2, 80, 2))
sketch1.addConstraint(Sketcher.Constraint("Vertical", 46, 2, 81, 2))
sketch1.addConstraint(Sketcher.Constraint("Vertical", 45, 2, 82, 2))
sketch1.addConstraint(Sketcher.Constraint("Vertical", 44, 2, 83, 2))
sketch1.addConstraint(Sketcher.Constraint("Equal", 17, 28))
sketch1.addConstraint(Sketcher.Constraint("Equal", 32, 33))
sketch1.addConstraint(Sketcher.Constraint("Equal", 31, 34))
sketch1.addConstraint(Sketcher.Constraint("Equal", 29, 36))
sketch1.addConstraint(Sketcher.Constraint("Equal", 28, 48))
sketch1.addConstraint(Sketcher.Constraint("Equal", 11, 54))
sketch1.addConstraint(Sketcher.Constraint("Equal", 8, 57))
sketch1.addConstraint(Sketcher.Constraint("Equal", 63, 69))
sketch1.addConstraint(Sketcher.Constraint("Equal", 14, 79))
sketch1.addConstraint(Sketcher.Constraint("Equal", 25, 81))
sketch1.addConstraint(Sketcher.Constraint("DistanceX", -1, 1, 44, 2, 383.35))
sketch1.addConstraint(Sketcher.Constraint("DistanceX", -1, 1, 48, 2, 384.87))
sketch1.addConstraint(Sketcher.Constraint("DistanceX", -1, 1, 63, 2, 387.96))
sketch1.addConstraint(Sketcher.Constraint("DistanceX", -1, 1, 0, 2, 382.958))
sketch1.addConstraint(Sketcher.Constraint("DistanceY", 0, 2, -1, 1, 164.299))
sketch1.addConstraint(Sketcher.Constraint("DistanceY", 2, 2, -1, 1, 164.284))
sketch1.addConstraint(Sketcher.Constraint("DistanceY", 3, 2, -1, 1, 164.237))
sketch1.addConstraint(Sketcher.Constraint("DistanceY", 4, 2, -1, 1, 164.162))
sketch1.addConstraint(Sketcher.Constraint("DistanceY", 5, 2, -1, 1, 164.055))
sketch1.addConstraint(Sketcher.Constraint("DistanceY", 6, 2, -1, 1, 163.919))
sketch1.addConstraint(Sketcher.Constraint("DistanceY", 7, 2, -1, 1, 163.755))
sketch1.addConstraint(Sketcher.Constraint("DistanceY", 8, 2, -1, 1, 163.564))
sketch1.addConstraint(Sketcher.Constraint("DistanceY", 9, 2, -1, 1, 163.344))
sketch1.addConstraint(Sketcher.Constraint("DistanceY", 10, 2, -1, 1, 163.102))
sketch1.addConstraint(Sketcher.Constraint("DistanceY", 11, 2, -1, 1, 162.834))
sketch1.addConstraint(Sketcher.Constraint("DistanceY", 12, 2, -1, 1, 162.547))
sketch1.addConstraint(Sketcher.Constraint("DistanceY", 13, 2, -1, 1, 162.238))
sketch1.addConstraint(Sketcher.Constraint("DistanceY", 14, 2, -1, 1, 161.913))
sketch1.addConstraint(Sketcher.Constraint("DistanceY", 15, 2, -1, 1, 161.569))
sketch1.addConstraint(Sketcher.Constraint("DistanceY", 16, 2, -1, 1, 161.212))
sketch1.addConstraint(Sketcher.Constraint("DistanceY", 17, 2, -1, 1, 160.845))
sketch1.addConstraint(Sketcher.Constraint("DistanceY", 18, 2, -1, 1, 160.467))
sketch1.addConstraint(Sketcher.Constraint("DistanceY", 19, 2, -1, 1, 160.082))
sketch1.addConstraint(Sketcher.Constraint("DistanceY", 20, 2, -1, 1, 159.693))
sketch1.addConstraint(Sketcher.Constraint("DistanceY", 21, 2, -1, 1, 159.299))
sketch1.addConstraint(Sketcher.Constraint("DistanceY", 23, 2, -1, 1, 4.881))
sketch1.addConstraint(Sketcher.Constraint("DistanceX", -1, 1, 45, 2, 383.741))
sketch1.addConstraint(Sketcher.Constraint("DistanceX", -1, 1, 46, 2, 384.126))
sketch1.addConstraint(Sketcher.Constraint("DistanceX", -1, 1, 47, 2, 384.503))
sketch1.addConstraint(Sketcher.Constraint("DistanceX", -1, 1, 49, 2, 385.226))
sketch1.addConstraint(Sketcher.Constraint("DistanceX", -1, 1, 50, 2, 385.572))
sketch1.addConstraint(Sketcher.Constraint("DistanceX", -1, 1, 51, 2, 385.897))
sketch1.addConstraint(Sketcher.Constraint("DistanceX", -1, 1, 52, 2, 386.203))
sketch1.addConstraint(Sketcher.Constraint("DistanceX", -1, 1, 53, 2, 386.493))
sketch1.addConstraint(Sketcher.Constraint("DistanceX", -1, 1, 54, 2, 386.761))
sketch1.addConstraint(Sketcher.Constraint("DistanceX", -1, 1, 55, 2, 387.004))
sketch1.addConstraint(Sketcher.Constraint("DistanceX", -1, 1, 56, 2, 387.223))
sketch1.addConstraint(Sketcher.Constraint("DistanceX", -1, 1, 57, 2, 387.414))
sketch1.addConstraint(Sketcher.Constraint("DistanceX", -1, 1, 58, 2, 387.576))
sketch1.addConstraint(Sketcher.Constraint("DistanceX", -1, 1, 59, 2, 387.713))
sketch1.addConstraint(Sketcher.Constraint("DistanceX", -1, 1, 60, 2, 387.819))
sketch1.addConstraint(Sketcher.Constraint("DistanceX", -1, 1, 61, 2, 387.897))
sketch1.addConstraint(Sketcher.Constraint("DistanceX", -1, 1, 62, 2, 387.943))
sketch1.addConstraint(Sketcher.Constraint("DistanceX", 1, 2, 1, 1, 377.86202))
sketch1.addConstraint(Sketcher.Constraint("DistanceY", 22, 1, 22, 2, 154.02525))
sketch1.addConstraint(Sketcher.Constraint("DistanceX", -1, 1, 3, 2, 4.3119))
sketch1.addConstraint(Sketcher.Constraint("DistanceX", -1, 1, 4, 2, 3.9274))
sketch1.addConstraint(Sketcher.Constraint("DistanceX", -1, 1, 12, 2, 1.2926))
sketch1.addConstraint(Sketcher.Constraint("DistanceY", 30, 2, -1, 1, 2.3344))
sketch1.addConstraint(Sketcher.Constraint("DistanceY", 35, 2, -1, 1, 1.0101))
sketch1.addConstraint(Sketcher.Constraint("Distance", 5, 0.392439))
sketch1.addConstraint(Sketcher.Constraint("Distance", 6, 0.39227))
sketch1.addConstraint(Sketcher.Constraint("Distance", 13, 0.392819))
sketch1.addConstraint(Sketcher.Constraint("Distance", 16, 0.392862))
sketch1.addConstraint(Sketcher.Constraint("Distance", 18, 0.392611))
sketch1.addConstraint(Sketcher.Constraint("Distance", 19, 0.392389))
sketch1.addConstraint(Sketcher.Constraint("Distance", 20, 0.391812))
sketch1.addConstraint(Sketcher.Constraint("Distance", 21, 0.394291))
sketch1.addConstraint(Sketcher.Constraint("Distance", 27, 0.392409))
sketch1.addConstraint(Sketcher.Constraint("Distance", 37, 0.39278))
sketch1.addConstraint(Sketcher.Constraint("Distance", 38, 0.392418))
sketch1.addConstraint(Sketcher.Constraint("Distance", 44, 0.392349))
sketch1.addConstraint(Sketcher.Constraint("Distance", 46, 0.392658))
sketch1.addConstraint(Sketcher.Constraint("Distance", 50, 0.395482))
sketch1.addConstraint(Sketcher.Constraint("Distance", 55, 0.392852))
sketch1.addConstraint(Sketcher.Constraint("Distance", 56, 0.39322))
sketch1.addConstraint(Sketcher.Constraint("DistanceX", -1, 1, 2, 2, 4.70186))
sketch1.addConstraint(Sketcher.Constraint("DistanceX", -1, 1, 7, 2, 2.82498))
sketch1.addConstraint(Sketcher.Constraint("DistanceX", -1, 1, 8, 2, 2.48185))
sketch1.addConstraint(Sketcher.Constraint("DistanceX", -1, 1, 9, 2, 2.15663))
sketch1.addConstraint(Sketcher.Constraint("DistanceX", -1, 1, 10, 2, 1.84795))
sketch1.addConstraint(Sketcher.Constraint("DistanceX", -1, 1, 11, 2, 1.55994))
sketch1.addConstraint(Sketcher.Constraint("DistanceY", 24, 2, -1, 1, 4.49104))
sketch1.addConstraint(Sketcher.Constraint("Distance", 39, 0.392196))
sketch1.addConstraint(Sketcher.Constraint("Distance", 41, 0.392603))
pad1 = body.newObject("PartDesign::Pad", "Pad")
pad1.Profile = sketch1
pad1.Length = 5
pad1.Reversed = True

doc.recompute()
